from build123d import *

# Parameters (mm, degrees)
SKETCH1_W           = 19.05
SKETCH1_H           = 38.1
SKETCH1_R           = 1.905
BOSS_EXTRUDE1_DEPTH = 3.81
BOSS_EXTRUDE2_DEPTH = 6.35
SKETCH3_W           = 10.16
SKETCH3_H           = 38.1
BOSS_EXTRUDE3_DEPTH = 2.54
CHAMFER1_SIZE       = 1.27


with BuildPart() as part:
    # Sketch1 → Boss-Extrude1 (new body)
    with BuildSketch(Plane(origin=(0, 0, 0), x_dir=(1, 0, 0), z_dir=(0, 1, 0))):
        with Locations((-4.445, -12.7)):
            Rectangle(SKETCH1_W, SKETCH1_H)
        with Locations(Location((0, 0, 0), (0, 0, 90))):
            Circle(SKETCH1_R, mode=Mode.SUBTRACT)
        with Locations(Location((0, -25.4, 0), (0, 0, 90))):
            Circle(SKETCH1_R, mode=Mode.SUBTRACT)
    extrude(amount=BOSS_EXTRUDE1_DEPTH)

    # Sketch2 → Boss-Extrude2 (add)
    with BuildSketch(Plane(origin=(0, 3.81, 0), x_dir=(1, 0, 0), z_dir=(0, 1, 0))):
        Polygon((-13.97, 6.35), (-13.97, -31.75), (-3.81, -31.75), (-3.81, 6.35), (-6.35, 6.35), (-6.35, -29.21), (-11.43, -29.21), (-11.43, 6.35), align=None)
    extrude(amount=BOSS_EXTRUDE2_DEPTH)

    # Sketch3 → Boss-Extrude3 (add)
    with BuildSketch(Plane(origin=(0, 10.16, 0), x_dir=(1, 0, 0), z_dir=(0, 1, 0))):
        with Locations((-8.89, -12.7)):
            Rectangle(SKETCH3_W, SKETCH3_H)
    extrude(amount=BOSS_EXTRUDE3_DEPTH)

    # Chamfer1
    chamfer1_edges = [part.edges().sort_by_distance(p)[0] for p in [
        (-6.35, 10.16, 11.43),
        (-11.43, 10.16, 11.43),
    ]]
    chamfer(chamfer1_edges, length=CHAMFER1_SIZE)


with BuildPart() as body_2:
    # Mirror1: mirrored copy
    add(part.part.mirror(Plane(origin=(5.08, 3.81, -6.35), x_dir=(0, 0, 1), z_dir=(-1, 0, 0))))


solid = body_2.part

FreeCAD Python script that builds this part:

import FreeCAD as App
import Part
import Sketcher
Q = App.Units.Quantity


def edges_at(feature, points):
    """Names of the edges that pass closest to the given points."""
    edges = feature.Shape.Edges
    near = lambda p: min(range(len(edges)), key=lambda i: edges[i].distToShape(Part.Vertex(*p))[0])
    return sorted({f"Edge{near(p) + 1}" for p in points})


def add_polygon(sketch, points):
    """Adds a closed chain of lines whose ends are joined by coincident constraints."""
    first, n = sketch.GeometryCount, len(points)
    for a, b in zip(points, points[1:] + points[:1]):
        sketch.addGeometry(Part.LineSegment(App.Vector(*a, 0), App.Vector(*b, 0)), False)
    for i in range(n):
        sketch.addConstraint(Sketcher.Constraint("Coincident", first + i, 2, first + (i + 1) % n, 1))

doc = App.newDocument("Part")
body = doc.addObject("PartDesign::Body", "Body")

# Sketch on XZ plane
sketch1 = body.newObject("Sketcher::SketchObject", "Sketch")
sketch1.AttachmentSupport = (doc.getObject("XZ_Plane"), [""])
sketch1.MapMode = "FlatFace"
add_polygon(sketch1, [(-14, -6.3), (-14, 31.8), (5.1, 31.8), (5.1, -6.3)])  # lines 0-3
sketch1.addGeometry(Part.Circle(App.Vector(0, 25.4, 0), App.Vector(0, 0, 1), 1.9), False)  # 4
sketch1.addGeometry(Part.Circle(App.Vector(0, 0, 0), App.Vector(0, 0, 1), 1.9), False)  # 5
sketch1.addConstraint(Sketcher.Constraint("Vertical", 0))
sketch1.addConstraint(Sketcher.Constraint("Horizontal", 1))
sketch1.addConstraint(Sketcher.Constraint("Vertical", 2))
sketch1.addConstraint(Sketcher.Constraint("Horizontal", 3))
sketch1.addConstraint(Sketcher.Constraint("Coincident", 5, 3, -1, 1))
sketch1.addConstraint(Sketcher.Constraint("Equal", 4, 5))
sketch1.addConstraint(Sketcher.Constraint("PointOnObject", 4, 3, -2))
sketch1.addConstraint(Sketcher.Constraint("Diameter", 4, Q("0.15 in")))
sketch1.addConstraint(Sketcher.Constraint("DistanceY", 0, 1, 0, 2, Q("1.5 in")))
sketch1.addConstraint(Sketcher.Constraint("DistanceY", -1, 1, 4, 3, Q("1 in")))
sketch1.addConstraint(Sketcher.Constraint("DistanceX", 1, 1, 1, 2, Q("0.75 in")))
sketch1.addConstraint(Sketcher.Constraint("DistanceX", -1, 1, 1, 2, Q("0.2 in")))
sketch1.addConstraint(Sketcher.Constraint("DistanceY", -1, 1, 0, 2, Q("1.25 in")))
pad1 = body.newObject("PartDesign::Pad", "Pad")
pad1.Profile = sketch1
pad1.Length = Q("0.15 in")
pad1.Reversed = True

# Sketch on XZ plane
sketch2 = body.newObject("Sketcher::SketchObject", "Sketch001")
sketch2.AttachmentSupport = (doc.getObject("XZ_Plane"), [""])
sketch2.MapMode = "FlatFace"
sketch2.AttachmentOffset = App.Placement(App.Vector(0, 0, -0.15 * 25.4), App.Rotation())
add_polygon(sketch2, [(-14, -6.3), (-14, 31.8), (-3.8, 31.8), (-3.8, -6.3), (-6.3, -6.3), (-6.3, 29.2), (-11.4, 29.2), (-11.4, -6.3)])  # lines 0-7
sketch2.addConstraint(Sketcher.Constraint("Vertical", 0))
sketch2.addConstraint(Sketcher.Constraint("Horizontal", 1))
sketch2.addConstraint(Sketcher.Constraint("Vertical", 2))
sketch2.addConstraint(Sketcher.Constraint("Horizontal", 3))
sketch2.addConstraint(Sketcher.Constraint("Vertical", 4))
sketch2.addConstraint(Sketcher.Constraint("Horizontal", 5))
sketch2.addConstraint(Sketcher.Constraint("Vertical", 6))
sketch2.addConstraint(Sketcher.Constraint("Horizontal", 7))
sketch2.addConstraint(Sketcher.Constraint("Horizontal", 3, 2, 6, 2))
sketch2.addConstraint(Sketcher.Constraint("Equal", 3, 7))
sketch2.addConstraint(Sketcher.Constraint("DistanceX", 1, 1, 1, 2, Q("0.4 in")))
sketch2.addConstraint(Sketcher.Constraint("DistanceX", 3, 2, 3, 1, Q("0.1 in")))
sketch2.addConstraint(Sketcher.Constraint("DistanceY", 0, 1, 0, 2, Q("1.5 in")))
sketch2.addConstraint(Sketcher.Constraint("DistanceY", 4, 1, 4, 2, Q("1.4 in")))
sketch2.addConstraint(Sketcher.Constraint("DistanceX", 0, 2, -1, 1, Q("0.55 in")))
sketch2.addConstraint(Sketcher.Constraint("DistanceY", -1, 1, 0, 2, Q("1.25 in")))
pad2 = body.newObject("PartDesign::Pad", "Pad001")
pad2.Profile = sketch2
pad2.Length = Q("0.25 in")
pad2.Reversed = True

# Sketch on XZ plane
sketch3 = body.newObject("Sketcher::SketchObject", "Sketch002")
sketch3.AttachmentSupport = (doc.getObject("XZ_Plane"), [""])
sketch3.MapMode = "FlatFace"
sketch3.AttachmentOffset = App.Placement(App.Vector(0, 0, -0.4 * 25.4), App.Rotation())
add_polygon(sketch3, [(-14, -6), (-14, 32), (-4, 32), (-4, -6)])  # lines 0-3
sketch3.addConstraint(Sketcher.Constraint("Vertical", 0))
sketch3.addConstraint(Sketcher.Constraint("Horizontal", 1))
sketch3.addConstraint(Sketcher.Constraint("Vertical", 2))
sketch3.addConstraint(Sketcher.Constraint("Horizontal", 3))
sketch3.addConstraint(Sketcher.Constraint("DistanceX", 1, 1, 1, 2, Q("0.4 in")))
sketch3.addConstraint(Sketcher.Constraint("DistanceY", 0, 1, 0, 2, Q("1.5 in")))
sketch3.addConstraint(Sketcher.Constraint("DistanceX", 0, 2, -1, 1, Q("0.55 in")))
sketch3.addConstraint(Sketcher.Constraint("DistanceY", -1, 1, 0, 2, Q("1.25 in")))
pad3 = body.newObject("PartDesign::Pad", "Pad002")
pad3.Profile = sketch3
pad3.Length = Q("0.1 in")
pad3.Reversed = True
doc.recompute()

chamfer = body.newObject("PartDesign::Chamfer", "Chamfer")
chamfer.Base = (pad3, edges_at(pad3, [(-6.35, 10.16, 11.43), (-11.43, 10.16, 11.43)]))
chamfer.Size = Q("0.05 in")
body2 = doc.addObject("PartDesign::Body", "Body001")
doc.recompute()

mirroring = doc.addObject("Part::Mirroring", "Mirroring")
mirroring.Source = body
mirroring.Base = App.Vector(5.08, 3.81, -6.35)
mirroring.Normal = App.Vector(-1, 0, 0)
body2.BaseFeature = mirroring
doc.recompute()
body.Visibility = False
mirroring.Visibility = False

doc.recompute()
